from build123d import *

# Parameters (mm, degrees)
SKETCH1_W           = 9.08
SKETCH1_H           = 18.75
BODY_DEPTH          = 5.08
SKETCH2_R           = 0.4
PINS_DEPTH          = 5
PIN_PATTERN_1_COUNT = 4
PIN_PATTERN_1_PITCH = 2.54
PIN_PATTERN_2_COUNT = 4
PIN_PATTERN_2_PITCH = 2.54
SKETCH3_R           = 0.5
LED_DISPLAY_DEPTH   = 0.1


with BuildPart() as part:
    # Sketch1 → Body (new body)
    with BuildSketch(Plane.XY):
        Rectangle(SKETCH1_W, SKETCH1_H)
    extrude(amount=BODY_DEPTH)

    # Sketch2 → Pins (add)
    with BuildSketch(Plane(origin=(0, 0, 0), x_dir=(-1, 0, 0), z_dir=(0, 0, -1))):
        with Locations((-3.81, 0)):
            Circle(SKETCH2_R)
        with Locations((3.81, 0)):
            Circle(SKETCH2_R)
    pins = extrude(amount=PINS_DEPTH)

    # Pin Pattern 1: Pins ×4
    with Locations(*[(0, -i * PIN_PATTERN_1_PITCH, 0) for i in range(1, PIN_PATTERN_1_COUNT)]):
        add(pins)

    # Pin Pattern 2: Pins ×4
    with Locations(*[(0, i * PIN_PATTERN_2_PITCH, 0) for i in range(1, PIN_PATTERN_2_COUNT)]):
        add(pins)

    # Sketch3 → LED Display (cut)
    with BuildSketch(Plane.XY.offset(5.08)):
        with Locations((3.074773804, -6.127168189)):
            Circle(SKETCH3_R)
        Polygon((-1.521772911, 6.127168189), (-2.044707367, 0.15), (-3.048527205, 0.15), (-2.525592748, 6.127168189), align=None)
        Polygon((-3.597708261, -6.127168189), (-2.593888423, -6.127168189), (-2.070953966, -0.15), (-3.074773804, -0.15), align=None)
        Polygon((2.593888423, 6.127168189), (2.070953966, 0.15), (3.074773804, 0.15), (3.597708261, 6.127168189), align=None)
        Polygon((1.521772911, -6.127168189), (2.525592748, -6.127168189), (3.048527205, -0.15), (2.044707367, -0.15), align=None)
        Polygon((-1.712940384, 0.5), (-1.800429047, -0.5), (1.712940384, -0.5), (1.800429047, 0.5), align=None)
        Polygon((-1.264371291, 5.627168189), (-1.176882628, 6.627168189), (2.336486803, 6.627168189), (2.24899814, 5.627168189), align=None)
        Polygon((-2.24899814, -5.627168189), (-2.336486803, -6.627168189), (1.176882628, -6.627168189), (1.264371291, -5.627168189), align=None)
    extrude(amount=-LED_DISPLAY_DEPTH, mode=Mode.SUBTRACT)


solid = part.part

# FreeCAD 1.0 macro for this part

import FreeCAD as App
import Part
import Sketcher
Q = App.Units.Quantity

doc = App.newDocument("Part")
params = doc.addObject("Spreadsheet::Sheet", "Params")
for row, (alias, value) in enumerate([
    ("sketch1_width", "9.08 mm"),
    ("sketch1_height", "18.75 mm"),
    ("pad1_length", "5.08 mm"),
    ("sketch2_diameter", "0.8 mm"),
    ("pad2_length", "5 mm"),
    ("linearpattern_pitch", "2.54 mm"),
    ("linearpattern2_pitch", "2.54 mm"),
    ("sketch3_diameter", "1 mm"),
    ("sketch3_length", "6 mm"),
    ("pocket1_length", "0.1 mm"),
], start=1):
    params.set(f"A{row}", alias)
    params.set(f"B{row}", "=" + value)
    params.setAlias(f"B{row}", alias)

body = doc.addObject("PartDesign::Body", "Body")

sketch1 = body.newObject("Sketcher::SketchObject", "Sketch")
sketch1.AttachmentSupport = (doc.getObject("XY_Plane"), [""])
sketch1.MapMode = "FlatFace"
sketch1.addGeometry([
    Part.LineSegment(App.Vector(-5, 9, 0), App.Vector(-5, -9, 0)),
    Part.LineSegment(App.Vector(-5, -9, 0), App.Vector(5, -9, 0)),
    Part.LineSegment(App.Vector(5, -9, 0), App.Vector(5, 9, 0)),
    Part.LineSegment(App.Vector(5, 9, 0), App.Vector(-5, 9, 0)),
], False)
sketch1.addConstraint([
    Sketcher.Constraint("Coincident", 0, 2, 1, 1),
    Sketcher.Constraint("Coincident", 1, 2, 2, 1),
    Sketcher.Constraint("Coincident", 2, 2, 3, 1),
    Sketcher.Constraint("Coincident", 3, 2, 0, 1),
    Sketcher.Constraint("Vertical", 0),
    Sketcher.Constraint("Horizontal", 1),
    Sketcher.Constraint("Vertical", 2),
    Sketcher.Constraint("Horizontal", 3),
    Sketcher.Constraint("Symmetric", 0, 2, 2, 2, -1, 1),
    Sketcher.Constraint("DistanceX", 1, 1, 1, 2, Q("9.08 mm")),
    Sketcher.Constraint("DistanceY", 0, 2, 0, 1, Q("18.75 mm")),
])
sketch1.setExpression("Constraints[9]", "Params.sketch1_width")
sketch1.setExpression("Constraints[10]", "Params.sketch1_height")
pad1 = body.newObject("PartDesign::Pad", "Pad")
pad1.Profile = sketch1
pad1.setExpression("Length", "Params.pad1_length")

sketch2 = body.newObject("Sketcher::SketchObject", "Sketch001")
sketch2.AttachmentSupport = (doc.getObject("XY_Plane"), [""])
sketch2.MapMode = "FlatFace"
sketch2.addGeometry([
    Part.Circle(App.Vector(3.81, 0, 0), App.Vector(0, 0, 1), 0.4),
    Part.Circle(App.Vector(-3.81, 0, 0), App.Vector(0, 0, 1), 0.4),
], False)
sketch2.addConstraint([
    Sketcher.Constraint("Equal", 0, 1),
    Sketcher.Constraint("Symmetric", 0, 3, 1, 3, -1, 1),
    Sketcher.Constraint("PointOnObject", 0, 3, -1),
    Sketcher.Constraint("Diameter", 0, Q("0.8 mm")),
    Sketcher.Constraint("DistanceX", -1, 1, 0, 3, Q("3.81 mm")),
])
sketch2.setExpression("Constraints[3]", "Params.sketch2_diameter")
pad2 = body.newObject("PartDesign::Pad", "Pad001")
pad2.Profile = sketch2
pad2.setExpression("Length", "Params.pad2_length")
pad2.Reversed = True
doc.recompute()

linearpattern = body.newObject("PartDesign::LinearPattern", "LinearPattern")
linearpattern.Originals = [pad2]
linearpattern.Direction = (doc.getObject("Y_Axis"), [""])
linearpattern.Mode = "offset"
linearpattern.setExpression("Offset", "Params.linearpattern_pitch")
linearpattern.Occurrences = 4
linearpattern.Reversed = True
body.Tip = linearpattern
doc.recompute()

linearpattern2 = body.newObject("PartDesign::LinearPattern", "LinearPattern001")
linearpattern2.Originals = [pad2]
linearpattern2.Direction = (doc.getObject("Y_Axis"), [""])
linearpattern2.Mode = "offset"
linearpattern2.setExpression("Offset", "Params.linearpattern2_pitch")
linearpattern2.Occurrences = 4
body.Tip = linearpattern2

sketch3 = body.newObject("Sketcher::SketchObject", "Sketch002")
sketch3.AttachmentSupport = (doc.getObject("XY_Plane"), [""])
sketch3.MapMode = "FlatFace"
sketch3.AttachmentOffset = App.Placement(App.Vector(0, 0, 5.08), App.Rotation())
sketch3.addGeometry([
    Part.Circle(App.Vector(3.1, -6.1, 0), App.Vector(0, 0, 1), 0.5),
    Part.LineSegment(App.Vector(-2, 0.1, 0), App.Vector(-1.5, 6.1, 0)),
    Part.LineSegment(App.Vector(-1.5, 6.1, 0), App.Vector(-2.5, 6.1, 0)),
    Part.LineSegment(App.Vector(-2.5, 6.1, 0), App.Vector(-3, 0.1, 0)),
    Part.LineSegment(App.Vector(-3, 0.1, 0), App.Vector(-2, 0.1, 0)),
    Part.LineSegment(App.Vector(-3.6, -6.1, 0), App.Vector(-2.6, -6.1, 0)),
    Part.LineSegment(App.Vector(-2.6, -6.1, 0), App.Vector(-2.1, -0.1, 0)),
    Part.LineSegment(App.Vector(-2.1, -0.1, 0), App.Vector(-3.1, -0.1, 0)),
    Part.LineSegment(App.Vector(-3.1, -0.1, 0), App.Vector(-3.6, -6.1, 0)),
    Part.LineSegment(App.Vector(2.6, 6.1, 0), App.Vector(2.1, 0.1, 0)),
    Part.LineSegment(App.Vector(2.1, 0.1, 0), App.Vector(3.1, 0.1, 0)),
    Part.LineSegment(App.Vector(3.1, 0.1, 0), App.Vector(3.6, 6.1, 0)),
    Part.LineSegment(App.Vector(3.6, 6.1, 0), App.Vector(2.6, 6.1, 0)),
    Part.LineSegment(App.Vector(1.5, -6.1, 0), App.Vector(2.5, -6.1, 0)),
    Part.LineSegment(App.Vector(2.5, -6.1, 0), App.Vector(3, -0.1, 0)),
    Part.LineSegment(App.Vector(3, -0.1, 0), App.Vector(2, -0.1, 0)),
    Part.LineSegment(App.Vector(2, -0.1, 0), App.Vector(1.5, -6.1, 0)),
    Part.LineSegment(App.Vector(-1.7, 0.5, 0), App.Vector(-1.8, -0.5, 0)),
    Part.LineSegment(App.Vector(-1.8, -0.5, 0), App.Vector(1.7, -0.5, 0)),
    Part.LineSegment(App.Vector(1.7, -0.5, 0), App.Vector(1.8, 0.5, 0)),
    Part.LineSegment(App.Vector(1.8, 0.5, 0), App.Vector(-1.7, 0.5, 0)),
    Part.LineSegment(App.Vector(-1.2, 6.6, 0), App.Vector(-1.3, 5.6, 0)),
    Part.LineSegment(App.Vector(-1.3, 5.6, 0), App.Vector(2.2, 5.6, 0)),
    Part.LineSegment(App.Vector(2.2, 5.6, 0), App.Vector(2.3, 6.6, 0)),
    Part.LineSegment(App.Vector(2.3, 6.6, 0), App.Vector(-1.2, 6.6, 0)),
    Part.LineSegment(App.Vector(-2.2, -5.6, 0), App.Vector(-2.3, -6.6, 0)),
    Part.LineSegment(App.Vector(-2.3, -6.6, 0), App.Vector(1.2, -6.6, 0)),
    Part.LineSegment(App.Vector(1.2, -6.6, 0), App.Vector(1.3, -5.6, 0)),
    Part.LineSegment(App.Vector(1.3, -5.6, 0), App.Vector(-2.2, -5.6, 0)),
], False)
sketch3.addConstraint([
    Sketcher.Constraint("Coincident", 1, 2, 2, 1),
    Sketcher.Constraint("Coincident", 2, 2, 3, 1),
    Sketcher.Constraint("Coincident", 3, 2, 4, 1),
    Sketcher.Constraint("Coincident", 4, 2, 1, 1),
    Sketcher.Constraint("Coincident", 5, 2, 6, 1),
    Sketcher.Constraint("Coincident", 6, 2, 7, 1),
    Sketcher.Constraint("Coincident", 7, 2, 8, 1),
    Sketcher.Constraint("Coincident", 8, 2, 5, 1),
    Sketcher.Constraint("Coincident", 9, 2, 10, 1),
    Sketcher.Constraint("Coincident", 10, 2, 11, 1),
    Sketcher.Constraint("Coincident", 11, 2, 12, 1),
    Sketcher.Constraint("Coincident", 12, 2, 9, 1),
    Sketcher.Constraint("Coincident", 13, 2, 14, 1),
    Sketcher.Constraint("Coincident", 14, 2, 15, 1),
    Sketcher.Constraint("Coincident", 15, 2, 16, 1),
    Sketcher.Constraint("Coincident", 16, 2, 13, 1),
    Sketcher.Constraint("Coincident", 17, 2, 18, 1),
    Sketcher.Constraint("Coincident", 18, 2, 19, 1),
    Sketcher.Constraint("Coincident", 19, 2, 20, 1),
    Sketcher.Constraint("Coincident", 20, 2, 17, 1),
    Sketcher.Constraint("Coincident", 21, 2, 22, 1),
    Sketcher.Constraint("Coincident", 22, 2, 23, 1),
    Sketcher.Constraint("Coincident", 23, 2, 24, 1),
    Sketcher.Constraint("Coincident", 24, 2, 21, 1),
    Sketcher.Constraint("Coincident", 25, 2, 26, 1),
    Sketcher.Constraint("Coincident", 26, 2, 27, 1),
    Sketcher.Constraint("Coincident", 27, 2, 28, 1),
    Sketcher.Constraint("Coincident", 28, 2, 25, 1),
    Sketcher.Constraint("Horizontal", 2),
    Sketcher.Constraint("Horizontal", 4),
    Sketcher.Constraint("Horizontal", 5),
    Sketcher.Constraint("Horizontal", 7),
    Sketcher.Constraint("Horizontal", 10),
    Sketcher.Constraint("Horizontal", 12),
    Sketcher.Constraint("Horizontal", 13),
    Sketcher.Constraint("Horizontal", 15),
    Sketcher.Constraint("Horizontal", 18),
    Sketcher.Constraint("Horizontal", 20),
    Sketcher.Constraint("Horizontal", 22),
    Sketcher.Constraint("Horizontal", 24),
    Sketcher.Constraint("Horizontal", 26),
    Sketcher.Constraint("Horizontal", 28),
    Sketcher.Constraint("Symmetric", 6, 2, 9, 2, -1, 1),
    Sketcher.Constraint("Symmetric", 8, 2, 11, 2, -1, 1),
    Sketcher.Constraint("Symmetric", 2, 2, 13, 2, -1, 1),
    Sketcher.Constraint("Symmetric", 3, 2, 14, 2, -1, 1),
    Sketcher.Constraint("Symmetric", 17, 2, 19, 2, -1, 1),
    Sketcher.Constraint("Symmetric", 23, 2, 25, 2, -1, 1),
    Sketcher.Constraint("Symmetric", 21, 2, 27, 2, -1, 1),
    Sketcher.Constraint("Parallel", 1, 3),
    Sketcher.Constraint("Parallel", 3, 6),
    Sketcher.Constraint("Parallel", 6, 8),
    Sketcher.Constraint("Parallel", 8, 9),
    Sketcher.Constraint("Parallel", 9, 11),
    Sketcher.Constraint("Parallel", 14, 16),
    Sketcher.Constraint("Parallel", 16, 17),
    Sketcher.Constraint("Parallel", 17, 19),
    Sketcher.Constraint("Parallel", 19, 21),
    Sketcher.Constraint("Parallel", 21, 23),
    Sketcher.Constraint("Parallel", 23, 25),
    Sketcher.Constraint("Parallel", 25, 27),
    Sketcher.Constraint("Horizontal", 0, 3, 5, 2),
    Sketcher.Constraint("Horizontal", 4, 2, 9, 2),
    Sketcher.Constraint("Horizontal", 2, 2, 11, 2),
    Sketcher.Constraint("Vertical", 0, 3, 10, 2),
    Sketcher.Constraint("Equal", 4, 5),
    Sketcher.Constraint("Equal", 12, 13),
    Sketcher.Constraint("Equal", 20, 22),
    Sketcher.Constraint("Equal", 19, 21),
    Sketcher.Constraint("Diameter", 0, Q("1 mm")),
    Sketcher.Constraint("Angle", 1, Q("85 deg")),
    Sketcher.Constraint("Distance", 1, Q("6 mm")),
    Sketcher.Constraint("DistanceY", 18, 2, 19, 2, Q("1 mm")),
    Sketcher.Constraint("DistanceY", 6, 2, 4, 2, Q("0.3 mm")),
    Sketcher.Constraint("DistanceY", 21, 2, 1, 2, Q("0.5 mm")),
    Sketcher.Constraint("DistanceX", -1, 1, 22, 2, Q("2.248998 mm")),
    Sketcher.Constraint("DistanceX", 8, 2, 4, 2, Q("1.553001 mm")),
    Sketcher.Constraint("DistanceX", 2, 2, 2, 1, Q("1.00382 mm")),
    Sketcher.Constraint("DistanceX", 18, 1, 18, 2, Q("3.513369 mm")),
    Sketcher.Constraint("DistanceX", 3, 2, 0, 3, Q("6.123301 mm")),
])
sketch3.setExpression("Constraints[69]", "Params.sketch3_diameter")
sketch3.setExpression("Constraints[71]", "Params.sketch3_length")
pocket1 = body.newObject("PartDesign::Pocket", "Pocket")
pocket1.Profile = sketch3
pocket1.setExpression("Length", "Params.pocket1_length")

doc.recompute()
